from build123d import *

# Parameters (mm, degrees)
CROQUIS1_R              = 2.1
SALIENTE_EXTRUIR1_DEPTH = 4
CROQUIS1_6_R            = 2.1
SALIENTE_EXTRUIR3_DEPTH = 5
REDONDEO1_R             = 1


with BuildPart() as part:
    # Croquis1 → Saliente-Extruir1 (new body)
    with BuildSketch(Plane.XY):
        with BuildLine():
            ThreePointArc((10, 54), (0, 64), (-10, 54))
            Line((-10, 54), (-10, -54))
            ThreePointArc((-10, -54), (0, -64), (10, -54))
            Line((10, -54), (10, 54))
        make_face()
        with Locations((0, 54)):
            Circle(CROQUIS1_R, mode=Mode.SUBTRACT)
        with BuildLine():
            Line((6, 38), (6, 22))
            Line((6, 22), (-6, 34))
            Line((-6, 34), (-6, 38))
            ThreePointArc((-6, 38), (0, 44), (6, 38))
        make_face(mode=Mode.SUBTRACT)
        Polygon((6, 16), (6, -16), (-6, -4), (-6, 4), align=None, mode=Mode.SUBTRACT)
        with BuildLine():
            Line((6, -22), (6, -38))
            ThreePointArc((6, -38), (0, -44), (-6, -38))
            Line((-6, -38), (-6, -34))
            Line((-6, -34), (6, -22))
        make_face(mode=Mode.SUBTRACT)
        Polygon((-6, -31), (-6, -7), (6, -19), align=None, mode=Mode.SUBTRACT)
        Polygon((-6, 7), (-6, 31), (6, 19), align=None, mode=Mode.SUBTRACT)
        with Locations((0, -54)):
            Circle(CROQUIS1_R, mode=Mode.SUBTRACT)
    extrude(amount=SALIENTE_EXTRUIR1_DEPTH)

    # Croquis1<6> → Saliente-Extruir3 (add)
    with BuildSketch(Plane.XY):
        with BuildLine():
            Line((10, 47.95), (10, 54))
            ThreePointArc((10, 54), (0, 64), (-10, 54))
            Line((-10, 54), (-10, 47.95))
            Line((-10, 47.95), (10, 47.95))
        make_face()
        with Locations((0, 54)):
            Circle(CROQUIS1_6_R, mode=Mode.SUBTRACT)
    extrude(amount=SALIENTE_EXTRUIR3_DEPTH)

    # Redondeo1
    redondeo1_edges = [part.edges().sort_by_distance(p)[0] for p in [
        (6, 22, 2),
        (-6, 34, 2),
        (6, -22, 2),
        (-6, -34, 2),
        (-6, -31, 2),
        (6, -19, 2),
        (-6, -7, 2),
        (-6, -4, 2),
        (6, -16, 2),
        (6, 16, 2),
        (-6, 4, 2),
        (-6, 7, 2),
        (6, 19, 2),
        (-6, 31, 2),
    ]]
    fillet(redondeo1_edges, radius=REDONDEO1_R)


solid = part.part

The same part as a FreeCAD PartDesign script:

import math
import FreeCAD as App
import Part
import Sketcher
from FreeCAD import Vector
Q = App.Units.Quantity


def edges_at(feature, points):
    """Names of the edges that pass closest to the given points."""
    edges = feature.Shape.Edges
    near = lambda p: min(range(len(edges)), key=lambda i: edges[i].distToShape(Part.Vertex(*p))[0])
    return sorted({f"Edge{near(p) + 1}" for p in points})


def add_polygon(sketch, points):
    """Adds a closed chain of lines whose ends are joined by coincident constraints."""
    first, n = sketch.GeometryCount, len(points)
    for a, b in zip(points, points[1:] + points[:1]):
        sketch.addGeometry(Part.LineSegment(App.Vector(*a, 0), App.Vector(*b, 0)), False)
    for i in range(n):
        sketch.addConstraint(Sketcher.Constraint("Coincident", first + i, 2, first + (i + 1) % n, 1))

doc = App.newDocument("Part")
body = doc.addObject("PartDesign::Body", "Body")

# Sketch on XY plane
sketch1 = body.newObject("Sketcher::SketchObject", "Sketch")
sketch1.AttachmentSupport = (doc.getObject("XY_Plane"), [""])
sketch1.MapMode = "FlatFace"
sketch1.addGeometry(Part.ArcOfCircle(Part.Circle(Vector(0, 54, 0), Vector(0, 0, 1), 10), math.radians(0), math.radians(180)), False)  # 0
sketch1.addGeometry(Part.LineSegment(Vector(-10, 54, 0), Vector(-10, -54, 0)), False)  # 1
sketch1.addGeometry(Part.ArcOfCircle(Part.Circle(Vector(0, -54, 0), Vector(0, 0, 1), 10), math.radians(180), math.radians(360)), False)  # 2
sketch1.addGeometry(Part.LineSegment(Vector(10, -54, 0), Vector(10, 54, 0)), False)  # 3
sketch1.addGeometry(Part.Circle(Vector(0, -54, 0), Vector(0, 0, 1), 2.1), False)  # 4
sketch1.addGeometry(Part.LineSegment(Vector(-6, -34, 0), Vector(6, -22, 0)), False)  # 5
sketch1.addGeometry(Part.LineSegment(Vector(6, -22, 0), Vector(6, -38, 0)), False)  # 6
sketch1.addGeometry(Part.ArcOfCircle(Part.Circle(Vector(0, -38, 0), Vector(0, 0, 1), 6), math.radians(180), math.radians(360)), False)  # 7
sketch1.addGeometry(Part.LineSegment(Vector(-6, -38, 0), Vector(-6, -34, 0)), False)  # 8
add_polygon(sketch1, [(6, -19), (-6, -31), (-6, -7)])  # lines 9-11
add_polygon(sketch1, [(-6, 4), (6, 16), (6, -16), (-6, -4)])  # lines 12-15
add_polygon(sketch1, [(6, 19), (-6, 7), (-6, 31)])  # lines 16-18
sketch1.addGeometry(Part.ArcOfCircle(Part.Circle(Vector(0, 38, 0), Vector(0, 0, 1), 6), math.radians(0), math.radians(180)), False)  # 19
sketch1.addGeometry(Part.LineSegment(Vector(6, 38, 0), Vector(6, 22, 0)), False)  # 20
sketch1.addGeometry(Part.LineSegment(Vector(6, 22, 0), Vector(-6, 34, 0)), False)  # 21
sketch1.addGeometry(Part.LineSegment(Vector(-6, 34, 0), Vector(-6, 38, 0)), False)  # 22
sketch1.addGeometry(Part.Circle(Vector(0, 54, 0), Vector(0, 0, 1), 2.1), False)  # 23
sketch1.addConstraint(Sketcher.Constraint("Tangent", 0, 2, 1, 1))
sketch1.addConstraint(Sketcher.Constraint("Tangent", 1, 2, 2, 1))
sketch1.addConstraint(Sketcher.Constraint("Tangent", 2, 2, 3, 1))
sketch1.addConstraint(Sketcher.Constraint("Tangent", 3, 2, 0, 1))
sketch1.addConstraint(Sketcher.Constraint("Coincident", 5, 2, 6, 1))
sketch1.addConstraint(Sketcher.Constraint("Tangent", 6, 2, 7, 2))
sketch1.addConstraint(Sketcher.Constraint("Tangent", 7, 1, 8, 1))
sketch1.addConstraint(Sketcher.Constraint("Coincident", 8, 2, 5, 1))
sketch1.addConstraint(Sketcher.Constraint("Tangent", 19, 1, 20, 1))
sketch1.addConstraint(Sketcher.Constraint("Coincident", 20, 2, 21, 1))
sketch1.addConstraint(Sketcher.Constraint("Coincident", 21, 2, 22, 1))
sketch1.addConstraint(Sketcher.Constraint("Tangent", 22, 2, 19, 2))
sketch1.addConstraint(Sketcher.Constraint("Vertical", 1))
sketch1.addConstraint(Sketcher.Constraint("Vertical", 3))
sketch1.addConstraint(Sketcher.Constraint("Vertical", 6))
sketch1.addConstraint(Sketcher.Constraint("Vertical", 8))
sketch1.addConstraint(Sketcher.Constraint("Vertical", 10))
sketch1.addConstraint(Sketcher.Constraint("Vertical", 13))
sketch1.addConstraint(Sketcher.Constraint("Vertical", 15))
sketch1.addConstraint(Sketcher.Constraint("Vertical", 17))
sketch1.addConstraint(Sketcher.Constraint("Vertical", 20))
sketch1.addConstraint(Sketcher.Constraint("Vertical", 22))
sketch1.addConstraint(Sketcher.Constraint("Coincident", 4, 3, 2, 3))
sketch1.addConstraint(Sketcher.Constraint("Coincident", 23, 3, 0, 3))
sketch1.addConstraint(Sketcher.Constraint("Equal", 7, 19))
sketch1.addConstraint(Sketcher.Constraint("Equal", 4, 23))
sketch1.addConstraint(Sketcher.Constraint("Symmetric", 0, 3, 2, 3, -1, 1))
sketch1.addConstraint(Sketcher.Constraint("Symmetric", 7, 3, 19, 3, -1, 1))
sketch1.addConstraint(Sketcher.Constraint("Symmetric", 10, 2, 16, 2, -1))
sketch1.addConstraint(Sketcher.Constraint("Symmetric", 11, 2, 18, 2, -1))
sketch1.addConstraint(Sketcher.Constraint("Symmetric", 5, 2, 20, 2, -1))
sketch1.addConstraint(Sketcher.Constraint("Parallel", 5, 9))
sketch1.addConstraint(Sketcher.Constraint("Perpendicular", 9, 11))
sketch1.addConstraint(Sketcher.Constraint("Perpendicular", 11, 12))
sketch1.addConstraint(Sketcher.Constraint("Perpendicular", 12, 14))
sketch1.addConstraint(Sketcher.Constraint("Perpendicular", 14, 16))
sketch1.addConstraint(Sketcher.Constraint("Perpendicular", 16, 18))
sketch1.addConstraint(Sketcher.Constraint("Parallel", 18, 21))
sketch1.addConstraint(Sketcher.Constraint("Vertical", 8, 2, 9, 2))
sketch1.addConstraint(Sketcher.Constraint("Vertical", 6, 2, 11, 2))
sketch1.addConstraint(Sketcher.Constraint("Vertical", 11, 2, 12, 2))
sketch1.addConstraint(Sketcher.Constraint("Vertical", 10, 2, 14, 2))
sketch1.addConstraint(Sketcher.Constraint("Radius", 0, Q("10 mm")))
sketch1.addConstraint(Sketcher.Constraint("Radius", 7, Q("6 mm")))
sketch1.addConstraint(Sketcher.Constraint("Diameter", 4, Q("4.2 mm")))
sketch1.addConstraint(Sketcher.Constraint("DistanceY", 1, 2, 1, 1, Q("108 mm")))
sketch1.addConstraint(Sketcher.Constraint("DistanceY", 6, 2, 6, 1, Q("16 mm")))
sketch1.addConstraint(Sketcher.Constraint("DistanceY", 13, 2, 13, 1, Q("32 mm")))
sketch1.addConstraint(Sketcher.Constraint("DistanceY", 7, 3, -1, 1, Q("38 mm")))
sketch1.addConstraint(Sketcher.Constraint("DistanceY", 9, 2, -1, 1, Q("31 mm")))
sketch1.addConstraint(Sketcher.Constraint("DistanceY", -1, 1, 12, 2, Q("16 mm")))
pad1 = body.newObject("PartDesign::Pad", "Pad")
pad1.Profile = sketch1
pad1.Length = 4

# Sketch on XY plane
sketch2 = body.newObject("Sketcher::SketchObject", "Sketch001")
sketch2.AttachmentSupport = (doc.getObject("XY_Plane"), [""])
sketch2.MapMode = "FlatFace"
sketch2.addGeometry(Part.LineSegment(Vector(10, 48, 0), Vector(10, 54, 0)), False)
sketch2.addGeometry(Part.ArcOfCircle(Part.Circle(Vector(0, 54, 0), Vector(0, 0, 1), 10), math.radians(0), math.radians(180)), False)
sketch2.addGeometry(Part.LineSegment(Vector(-10, 54, 0), Vector(-10, 48, 0)), False)
sketch2.addGeometry(Part.LineSegment(Vector(-10, 48, 0), Vector(10, 48, 0)), False)
sketch2.addGeometry(Part.Circle(Vector(0, 54, 0), Vector(0, 0, 1), 2.1), False)
sketch2.addConstraint(Sketcher.Constraint("Tangent", 0, 2, 1, 1))
sketch2.addConstraint(Sketcher.Constraint("Tangent", 1, 2, 2, 1))
sketch2.addConstraint(Sketcher.Constraint("Coincident", 2, 2, 3, 1))
sketch2.addConstraint(Sketcher.Constraint("Coincident", 3, 2, 0, 1))
sketch2.addConstraint(Sketcher.Constraint("Vertical", 0))
sketch2.addConstraint(Sketcher.Constraint("Vertical", 2))
sketch2.addConstraint(Sketcher.Constraint("Horizontal", 3))
sketch2.addConstraint(Sketcher.Constraint("Coincident", 4, 3, 1, 3))
sketch2.addConstraint(Sketcher.Constraint("PointOnObject", 1, 3, -2))
sketch2.addConstraint(Sketcher.Constraint("Radius", 1, Q("10 mm")))
sketch2.addConstraint(Sketcher.Constraint("Diameter", 4, Q("4.2 mm")))
sketch2.addConstraint(Sketcher.Constraint("DistanceY", -1, 1, 1, 3, Q("54 mm")))
sketch2.addConstraint(Sketcher.Constraint("DistanceY", 0, 1, 0, 2, Q("6.05 mm")))
pad2 = body.newObject("PartDesign::Pad", "Pad001")
pad2.Profile = sketch2
pad2.Length = 5
doc.recompute()

fillet = body.newObject("PartDesign::Fillet", "Fillet")
fillet.Base = (pad2, edges_at(pad2, [
    (6, 22, 2),
    (-6, 34, 2),
    (6, -22, 2),
    (-6, -34, 2),
    (-6, -31, 2),
    (6, -19, 2),
    (-6, -7, 2),
    (-6, -4, 2),
    (6, -16, 2),
    (6, 16, 2),
    (-6, 4, 2),
    (-6, 7, 2),
    (6, 19, 2),
    (-6, 31, 2),
]))
fillet.Radius = 1

doc.recompute()
